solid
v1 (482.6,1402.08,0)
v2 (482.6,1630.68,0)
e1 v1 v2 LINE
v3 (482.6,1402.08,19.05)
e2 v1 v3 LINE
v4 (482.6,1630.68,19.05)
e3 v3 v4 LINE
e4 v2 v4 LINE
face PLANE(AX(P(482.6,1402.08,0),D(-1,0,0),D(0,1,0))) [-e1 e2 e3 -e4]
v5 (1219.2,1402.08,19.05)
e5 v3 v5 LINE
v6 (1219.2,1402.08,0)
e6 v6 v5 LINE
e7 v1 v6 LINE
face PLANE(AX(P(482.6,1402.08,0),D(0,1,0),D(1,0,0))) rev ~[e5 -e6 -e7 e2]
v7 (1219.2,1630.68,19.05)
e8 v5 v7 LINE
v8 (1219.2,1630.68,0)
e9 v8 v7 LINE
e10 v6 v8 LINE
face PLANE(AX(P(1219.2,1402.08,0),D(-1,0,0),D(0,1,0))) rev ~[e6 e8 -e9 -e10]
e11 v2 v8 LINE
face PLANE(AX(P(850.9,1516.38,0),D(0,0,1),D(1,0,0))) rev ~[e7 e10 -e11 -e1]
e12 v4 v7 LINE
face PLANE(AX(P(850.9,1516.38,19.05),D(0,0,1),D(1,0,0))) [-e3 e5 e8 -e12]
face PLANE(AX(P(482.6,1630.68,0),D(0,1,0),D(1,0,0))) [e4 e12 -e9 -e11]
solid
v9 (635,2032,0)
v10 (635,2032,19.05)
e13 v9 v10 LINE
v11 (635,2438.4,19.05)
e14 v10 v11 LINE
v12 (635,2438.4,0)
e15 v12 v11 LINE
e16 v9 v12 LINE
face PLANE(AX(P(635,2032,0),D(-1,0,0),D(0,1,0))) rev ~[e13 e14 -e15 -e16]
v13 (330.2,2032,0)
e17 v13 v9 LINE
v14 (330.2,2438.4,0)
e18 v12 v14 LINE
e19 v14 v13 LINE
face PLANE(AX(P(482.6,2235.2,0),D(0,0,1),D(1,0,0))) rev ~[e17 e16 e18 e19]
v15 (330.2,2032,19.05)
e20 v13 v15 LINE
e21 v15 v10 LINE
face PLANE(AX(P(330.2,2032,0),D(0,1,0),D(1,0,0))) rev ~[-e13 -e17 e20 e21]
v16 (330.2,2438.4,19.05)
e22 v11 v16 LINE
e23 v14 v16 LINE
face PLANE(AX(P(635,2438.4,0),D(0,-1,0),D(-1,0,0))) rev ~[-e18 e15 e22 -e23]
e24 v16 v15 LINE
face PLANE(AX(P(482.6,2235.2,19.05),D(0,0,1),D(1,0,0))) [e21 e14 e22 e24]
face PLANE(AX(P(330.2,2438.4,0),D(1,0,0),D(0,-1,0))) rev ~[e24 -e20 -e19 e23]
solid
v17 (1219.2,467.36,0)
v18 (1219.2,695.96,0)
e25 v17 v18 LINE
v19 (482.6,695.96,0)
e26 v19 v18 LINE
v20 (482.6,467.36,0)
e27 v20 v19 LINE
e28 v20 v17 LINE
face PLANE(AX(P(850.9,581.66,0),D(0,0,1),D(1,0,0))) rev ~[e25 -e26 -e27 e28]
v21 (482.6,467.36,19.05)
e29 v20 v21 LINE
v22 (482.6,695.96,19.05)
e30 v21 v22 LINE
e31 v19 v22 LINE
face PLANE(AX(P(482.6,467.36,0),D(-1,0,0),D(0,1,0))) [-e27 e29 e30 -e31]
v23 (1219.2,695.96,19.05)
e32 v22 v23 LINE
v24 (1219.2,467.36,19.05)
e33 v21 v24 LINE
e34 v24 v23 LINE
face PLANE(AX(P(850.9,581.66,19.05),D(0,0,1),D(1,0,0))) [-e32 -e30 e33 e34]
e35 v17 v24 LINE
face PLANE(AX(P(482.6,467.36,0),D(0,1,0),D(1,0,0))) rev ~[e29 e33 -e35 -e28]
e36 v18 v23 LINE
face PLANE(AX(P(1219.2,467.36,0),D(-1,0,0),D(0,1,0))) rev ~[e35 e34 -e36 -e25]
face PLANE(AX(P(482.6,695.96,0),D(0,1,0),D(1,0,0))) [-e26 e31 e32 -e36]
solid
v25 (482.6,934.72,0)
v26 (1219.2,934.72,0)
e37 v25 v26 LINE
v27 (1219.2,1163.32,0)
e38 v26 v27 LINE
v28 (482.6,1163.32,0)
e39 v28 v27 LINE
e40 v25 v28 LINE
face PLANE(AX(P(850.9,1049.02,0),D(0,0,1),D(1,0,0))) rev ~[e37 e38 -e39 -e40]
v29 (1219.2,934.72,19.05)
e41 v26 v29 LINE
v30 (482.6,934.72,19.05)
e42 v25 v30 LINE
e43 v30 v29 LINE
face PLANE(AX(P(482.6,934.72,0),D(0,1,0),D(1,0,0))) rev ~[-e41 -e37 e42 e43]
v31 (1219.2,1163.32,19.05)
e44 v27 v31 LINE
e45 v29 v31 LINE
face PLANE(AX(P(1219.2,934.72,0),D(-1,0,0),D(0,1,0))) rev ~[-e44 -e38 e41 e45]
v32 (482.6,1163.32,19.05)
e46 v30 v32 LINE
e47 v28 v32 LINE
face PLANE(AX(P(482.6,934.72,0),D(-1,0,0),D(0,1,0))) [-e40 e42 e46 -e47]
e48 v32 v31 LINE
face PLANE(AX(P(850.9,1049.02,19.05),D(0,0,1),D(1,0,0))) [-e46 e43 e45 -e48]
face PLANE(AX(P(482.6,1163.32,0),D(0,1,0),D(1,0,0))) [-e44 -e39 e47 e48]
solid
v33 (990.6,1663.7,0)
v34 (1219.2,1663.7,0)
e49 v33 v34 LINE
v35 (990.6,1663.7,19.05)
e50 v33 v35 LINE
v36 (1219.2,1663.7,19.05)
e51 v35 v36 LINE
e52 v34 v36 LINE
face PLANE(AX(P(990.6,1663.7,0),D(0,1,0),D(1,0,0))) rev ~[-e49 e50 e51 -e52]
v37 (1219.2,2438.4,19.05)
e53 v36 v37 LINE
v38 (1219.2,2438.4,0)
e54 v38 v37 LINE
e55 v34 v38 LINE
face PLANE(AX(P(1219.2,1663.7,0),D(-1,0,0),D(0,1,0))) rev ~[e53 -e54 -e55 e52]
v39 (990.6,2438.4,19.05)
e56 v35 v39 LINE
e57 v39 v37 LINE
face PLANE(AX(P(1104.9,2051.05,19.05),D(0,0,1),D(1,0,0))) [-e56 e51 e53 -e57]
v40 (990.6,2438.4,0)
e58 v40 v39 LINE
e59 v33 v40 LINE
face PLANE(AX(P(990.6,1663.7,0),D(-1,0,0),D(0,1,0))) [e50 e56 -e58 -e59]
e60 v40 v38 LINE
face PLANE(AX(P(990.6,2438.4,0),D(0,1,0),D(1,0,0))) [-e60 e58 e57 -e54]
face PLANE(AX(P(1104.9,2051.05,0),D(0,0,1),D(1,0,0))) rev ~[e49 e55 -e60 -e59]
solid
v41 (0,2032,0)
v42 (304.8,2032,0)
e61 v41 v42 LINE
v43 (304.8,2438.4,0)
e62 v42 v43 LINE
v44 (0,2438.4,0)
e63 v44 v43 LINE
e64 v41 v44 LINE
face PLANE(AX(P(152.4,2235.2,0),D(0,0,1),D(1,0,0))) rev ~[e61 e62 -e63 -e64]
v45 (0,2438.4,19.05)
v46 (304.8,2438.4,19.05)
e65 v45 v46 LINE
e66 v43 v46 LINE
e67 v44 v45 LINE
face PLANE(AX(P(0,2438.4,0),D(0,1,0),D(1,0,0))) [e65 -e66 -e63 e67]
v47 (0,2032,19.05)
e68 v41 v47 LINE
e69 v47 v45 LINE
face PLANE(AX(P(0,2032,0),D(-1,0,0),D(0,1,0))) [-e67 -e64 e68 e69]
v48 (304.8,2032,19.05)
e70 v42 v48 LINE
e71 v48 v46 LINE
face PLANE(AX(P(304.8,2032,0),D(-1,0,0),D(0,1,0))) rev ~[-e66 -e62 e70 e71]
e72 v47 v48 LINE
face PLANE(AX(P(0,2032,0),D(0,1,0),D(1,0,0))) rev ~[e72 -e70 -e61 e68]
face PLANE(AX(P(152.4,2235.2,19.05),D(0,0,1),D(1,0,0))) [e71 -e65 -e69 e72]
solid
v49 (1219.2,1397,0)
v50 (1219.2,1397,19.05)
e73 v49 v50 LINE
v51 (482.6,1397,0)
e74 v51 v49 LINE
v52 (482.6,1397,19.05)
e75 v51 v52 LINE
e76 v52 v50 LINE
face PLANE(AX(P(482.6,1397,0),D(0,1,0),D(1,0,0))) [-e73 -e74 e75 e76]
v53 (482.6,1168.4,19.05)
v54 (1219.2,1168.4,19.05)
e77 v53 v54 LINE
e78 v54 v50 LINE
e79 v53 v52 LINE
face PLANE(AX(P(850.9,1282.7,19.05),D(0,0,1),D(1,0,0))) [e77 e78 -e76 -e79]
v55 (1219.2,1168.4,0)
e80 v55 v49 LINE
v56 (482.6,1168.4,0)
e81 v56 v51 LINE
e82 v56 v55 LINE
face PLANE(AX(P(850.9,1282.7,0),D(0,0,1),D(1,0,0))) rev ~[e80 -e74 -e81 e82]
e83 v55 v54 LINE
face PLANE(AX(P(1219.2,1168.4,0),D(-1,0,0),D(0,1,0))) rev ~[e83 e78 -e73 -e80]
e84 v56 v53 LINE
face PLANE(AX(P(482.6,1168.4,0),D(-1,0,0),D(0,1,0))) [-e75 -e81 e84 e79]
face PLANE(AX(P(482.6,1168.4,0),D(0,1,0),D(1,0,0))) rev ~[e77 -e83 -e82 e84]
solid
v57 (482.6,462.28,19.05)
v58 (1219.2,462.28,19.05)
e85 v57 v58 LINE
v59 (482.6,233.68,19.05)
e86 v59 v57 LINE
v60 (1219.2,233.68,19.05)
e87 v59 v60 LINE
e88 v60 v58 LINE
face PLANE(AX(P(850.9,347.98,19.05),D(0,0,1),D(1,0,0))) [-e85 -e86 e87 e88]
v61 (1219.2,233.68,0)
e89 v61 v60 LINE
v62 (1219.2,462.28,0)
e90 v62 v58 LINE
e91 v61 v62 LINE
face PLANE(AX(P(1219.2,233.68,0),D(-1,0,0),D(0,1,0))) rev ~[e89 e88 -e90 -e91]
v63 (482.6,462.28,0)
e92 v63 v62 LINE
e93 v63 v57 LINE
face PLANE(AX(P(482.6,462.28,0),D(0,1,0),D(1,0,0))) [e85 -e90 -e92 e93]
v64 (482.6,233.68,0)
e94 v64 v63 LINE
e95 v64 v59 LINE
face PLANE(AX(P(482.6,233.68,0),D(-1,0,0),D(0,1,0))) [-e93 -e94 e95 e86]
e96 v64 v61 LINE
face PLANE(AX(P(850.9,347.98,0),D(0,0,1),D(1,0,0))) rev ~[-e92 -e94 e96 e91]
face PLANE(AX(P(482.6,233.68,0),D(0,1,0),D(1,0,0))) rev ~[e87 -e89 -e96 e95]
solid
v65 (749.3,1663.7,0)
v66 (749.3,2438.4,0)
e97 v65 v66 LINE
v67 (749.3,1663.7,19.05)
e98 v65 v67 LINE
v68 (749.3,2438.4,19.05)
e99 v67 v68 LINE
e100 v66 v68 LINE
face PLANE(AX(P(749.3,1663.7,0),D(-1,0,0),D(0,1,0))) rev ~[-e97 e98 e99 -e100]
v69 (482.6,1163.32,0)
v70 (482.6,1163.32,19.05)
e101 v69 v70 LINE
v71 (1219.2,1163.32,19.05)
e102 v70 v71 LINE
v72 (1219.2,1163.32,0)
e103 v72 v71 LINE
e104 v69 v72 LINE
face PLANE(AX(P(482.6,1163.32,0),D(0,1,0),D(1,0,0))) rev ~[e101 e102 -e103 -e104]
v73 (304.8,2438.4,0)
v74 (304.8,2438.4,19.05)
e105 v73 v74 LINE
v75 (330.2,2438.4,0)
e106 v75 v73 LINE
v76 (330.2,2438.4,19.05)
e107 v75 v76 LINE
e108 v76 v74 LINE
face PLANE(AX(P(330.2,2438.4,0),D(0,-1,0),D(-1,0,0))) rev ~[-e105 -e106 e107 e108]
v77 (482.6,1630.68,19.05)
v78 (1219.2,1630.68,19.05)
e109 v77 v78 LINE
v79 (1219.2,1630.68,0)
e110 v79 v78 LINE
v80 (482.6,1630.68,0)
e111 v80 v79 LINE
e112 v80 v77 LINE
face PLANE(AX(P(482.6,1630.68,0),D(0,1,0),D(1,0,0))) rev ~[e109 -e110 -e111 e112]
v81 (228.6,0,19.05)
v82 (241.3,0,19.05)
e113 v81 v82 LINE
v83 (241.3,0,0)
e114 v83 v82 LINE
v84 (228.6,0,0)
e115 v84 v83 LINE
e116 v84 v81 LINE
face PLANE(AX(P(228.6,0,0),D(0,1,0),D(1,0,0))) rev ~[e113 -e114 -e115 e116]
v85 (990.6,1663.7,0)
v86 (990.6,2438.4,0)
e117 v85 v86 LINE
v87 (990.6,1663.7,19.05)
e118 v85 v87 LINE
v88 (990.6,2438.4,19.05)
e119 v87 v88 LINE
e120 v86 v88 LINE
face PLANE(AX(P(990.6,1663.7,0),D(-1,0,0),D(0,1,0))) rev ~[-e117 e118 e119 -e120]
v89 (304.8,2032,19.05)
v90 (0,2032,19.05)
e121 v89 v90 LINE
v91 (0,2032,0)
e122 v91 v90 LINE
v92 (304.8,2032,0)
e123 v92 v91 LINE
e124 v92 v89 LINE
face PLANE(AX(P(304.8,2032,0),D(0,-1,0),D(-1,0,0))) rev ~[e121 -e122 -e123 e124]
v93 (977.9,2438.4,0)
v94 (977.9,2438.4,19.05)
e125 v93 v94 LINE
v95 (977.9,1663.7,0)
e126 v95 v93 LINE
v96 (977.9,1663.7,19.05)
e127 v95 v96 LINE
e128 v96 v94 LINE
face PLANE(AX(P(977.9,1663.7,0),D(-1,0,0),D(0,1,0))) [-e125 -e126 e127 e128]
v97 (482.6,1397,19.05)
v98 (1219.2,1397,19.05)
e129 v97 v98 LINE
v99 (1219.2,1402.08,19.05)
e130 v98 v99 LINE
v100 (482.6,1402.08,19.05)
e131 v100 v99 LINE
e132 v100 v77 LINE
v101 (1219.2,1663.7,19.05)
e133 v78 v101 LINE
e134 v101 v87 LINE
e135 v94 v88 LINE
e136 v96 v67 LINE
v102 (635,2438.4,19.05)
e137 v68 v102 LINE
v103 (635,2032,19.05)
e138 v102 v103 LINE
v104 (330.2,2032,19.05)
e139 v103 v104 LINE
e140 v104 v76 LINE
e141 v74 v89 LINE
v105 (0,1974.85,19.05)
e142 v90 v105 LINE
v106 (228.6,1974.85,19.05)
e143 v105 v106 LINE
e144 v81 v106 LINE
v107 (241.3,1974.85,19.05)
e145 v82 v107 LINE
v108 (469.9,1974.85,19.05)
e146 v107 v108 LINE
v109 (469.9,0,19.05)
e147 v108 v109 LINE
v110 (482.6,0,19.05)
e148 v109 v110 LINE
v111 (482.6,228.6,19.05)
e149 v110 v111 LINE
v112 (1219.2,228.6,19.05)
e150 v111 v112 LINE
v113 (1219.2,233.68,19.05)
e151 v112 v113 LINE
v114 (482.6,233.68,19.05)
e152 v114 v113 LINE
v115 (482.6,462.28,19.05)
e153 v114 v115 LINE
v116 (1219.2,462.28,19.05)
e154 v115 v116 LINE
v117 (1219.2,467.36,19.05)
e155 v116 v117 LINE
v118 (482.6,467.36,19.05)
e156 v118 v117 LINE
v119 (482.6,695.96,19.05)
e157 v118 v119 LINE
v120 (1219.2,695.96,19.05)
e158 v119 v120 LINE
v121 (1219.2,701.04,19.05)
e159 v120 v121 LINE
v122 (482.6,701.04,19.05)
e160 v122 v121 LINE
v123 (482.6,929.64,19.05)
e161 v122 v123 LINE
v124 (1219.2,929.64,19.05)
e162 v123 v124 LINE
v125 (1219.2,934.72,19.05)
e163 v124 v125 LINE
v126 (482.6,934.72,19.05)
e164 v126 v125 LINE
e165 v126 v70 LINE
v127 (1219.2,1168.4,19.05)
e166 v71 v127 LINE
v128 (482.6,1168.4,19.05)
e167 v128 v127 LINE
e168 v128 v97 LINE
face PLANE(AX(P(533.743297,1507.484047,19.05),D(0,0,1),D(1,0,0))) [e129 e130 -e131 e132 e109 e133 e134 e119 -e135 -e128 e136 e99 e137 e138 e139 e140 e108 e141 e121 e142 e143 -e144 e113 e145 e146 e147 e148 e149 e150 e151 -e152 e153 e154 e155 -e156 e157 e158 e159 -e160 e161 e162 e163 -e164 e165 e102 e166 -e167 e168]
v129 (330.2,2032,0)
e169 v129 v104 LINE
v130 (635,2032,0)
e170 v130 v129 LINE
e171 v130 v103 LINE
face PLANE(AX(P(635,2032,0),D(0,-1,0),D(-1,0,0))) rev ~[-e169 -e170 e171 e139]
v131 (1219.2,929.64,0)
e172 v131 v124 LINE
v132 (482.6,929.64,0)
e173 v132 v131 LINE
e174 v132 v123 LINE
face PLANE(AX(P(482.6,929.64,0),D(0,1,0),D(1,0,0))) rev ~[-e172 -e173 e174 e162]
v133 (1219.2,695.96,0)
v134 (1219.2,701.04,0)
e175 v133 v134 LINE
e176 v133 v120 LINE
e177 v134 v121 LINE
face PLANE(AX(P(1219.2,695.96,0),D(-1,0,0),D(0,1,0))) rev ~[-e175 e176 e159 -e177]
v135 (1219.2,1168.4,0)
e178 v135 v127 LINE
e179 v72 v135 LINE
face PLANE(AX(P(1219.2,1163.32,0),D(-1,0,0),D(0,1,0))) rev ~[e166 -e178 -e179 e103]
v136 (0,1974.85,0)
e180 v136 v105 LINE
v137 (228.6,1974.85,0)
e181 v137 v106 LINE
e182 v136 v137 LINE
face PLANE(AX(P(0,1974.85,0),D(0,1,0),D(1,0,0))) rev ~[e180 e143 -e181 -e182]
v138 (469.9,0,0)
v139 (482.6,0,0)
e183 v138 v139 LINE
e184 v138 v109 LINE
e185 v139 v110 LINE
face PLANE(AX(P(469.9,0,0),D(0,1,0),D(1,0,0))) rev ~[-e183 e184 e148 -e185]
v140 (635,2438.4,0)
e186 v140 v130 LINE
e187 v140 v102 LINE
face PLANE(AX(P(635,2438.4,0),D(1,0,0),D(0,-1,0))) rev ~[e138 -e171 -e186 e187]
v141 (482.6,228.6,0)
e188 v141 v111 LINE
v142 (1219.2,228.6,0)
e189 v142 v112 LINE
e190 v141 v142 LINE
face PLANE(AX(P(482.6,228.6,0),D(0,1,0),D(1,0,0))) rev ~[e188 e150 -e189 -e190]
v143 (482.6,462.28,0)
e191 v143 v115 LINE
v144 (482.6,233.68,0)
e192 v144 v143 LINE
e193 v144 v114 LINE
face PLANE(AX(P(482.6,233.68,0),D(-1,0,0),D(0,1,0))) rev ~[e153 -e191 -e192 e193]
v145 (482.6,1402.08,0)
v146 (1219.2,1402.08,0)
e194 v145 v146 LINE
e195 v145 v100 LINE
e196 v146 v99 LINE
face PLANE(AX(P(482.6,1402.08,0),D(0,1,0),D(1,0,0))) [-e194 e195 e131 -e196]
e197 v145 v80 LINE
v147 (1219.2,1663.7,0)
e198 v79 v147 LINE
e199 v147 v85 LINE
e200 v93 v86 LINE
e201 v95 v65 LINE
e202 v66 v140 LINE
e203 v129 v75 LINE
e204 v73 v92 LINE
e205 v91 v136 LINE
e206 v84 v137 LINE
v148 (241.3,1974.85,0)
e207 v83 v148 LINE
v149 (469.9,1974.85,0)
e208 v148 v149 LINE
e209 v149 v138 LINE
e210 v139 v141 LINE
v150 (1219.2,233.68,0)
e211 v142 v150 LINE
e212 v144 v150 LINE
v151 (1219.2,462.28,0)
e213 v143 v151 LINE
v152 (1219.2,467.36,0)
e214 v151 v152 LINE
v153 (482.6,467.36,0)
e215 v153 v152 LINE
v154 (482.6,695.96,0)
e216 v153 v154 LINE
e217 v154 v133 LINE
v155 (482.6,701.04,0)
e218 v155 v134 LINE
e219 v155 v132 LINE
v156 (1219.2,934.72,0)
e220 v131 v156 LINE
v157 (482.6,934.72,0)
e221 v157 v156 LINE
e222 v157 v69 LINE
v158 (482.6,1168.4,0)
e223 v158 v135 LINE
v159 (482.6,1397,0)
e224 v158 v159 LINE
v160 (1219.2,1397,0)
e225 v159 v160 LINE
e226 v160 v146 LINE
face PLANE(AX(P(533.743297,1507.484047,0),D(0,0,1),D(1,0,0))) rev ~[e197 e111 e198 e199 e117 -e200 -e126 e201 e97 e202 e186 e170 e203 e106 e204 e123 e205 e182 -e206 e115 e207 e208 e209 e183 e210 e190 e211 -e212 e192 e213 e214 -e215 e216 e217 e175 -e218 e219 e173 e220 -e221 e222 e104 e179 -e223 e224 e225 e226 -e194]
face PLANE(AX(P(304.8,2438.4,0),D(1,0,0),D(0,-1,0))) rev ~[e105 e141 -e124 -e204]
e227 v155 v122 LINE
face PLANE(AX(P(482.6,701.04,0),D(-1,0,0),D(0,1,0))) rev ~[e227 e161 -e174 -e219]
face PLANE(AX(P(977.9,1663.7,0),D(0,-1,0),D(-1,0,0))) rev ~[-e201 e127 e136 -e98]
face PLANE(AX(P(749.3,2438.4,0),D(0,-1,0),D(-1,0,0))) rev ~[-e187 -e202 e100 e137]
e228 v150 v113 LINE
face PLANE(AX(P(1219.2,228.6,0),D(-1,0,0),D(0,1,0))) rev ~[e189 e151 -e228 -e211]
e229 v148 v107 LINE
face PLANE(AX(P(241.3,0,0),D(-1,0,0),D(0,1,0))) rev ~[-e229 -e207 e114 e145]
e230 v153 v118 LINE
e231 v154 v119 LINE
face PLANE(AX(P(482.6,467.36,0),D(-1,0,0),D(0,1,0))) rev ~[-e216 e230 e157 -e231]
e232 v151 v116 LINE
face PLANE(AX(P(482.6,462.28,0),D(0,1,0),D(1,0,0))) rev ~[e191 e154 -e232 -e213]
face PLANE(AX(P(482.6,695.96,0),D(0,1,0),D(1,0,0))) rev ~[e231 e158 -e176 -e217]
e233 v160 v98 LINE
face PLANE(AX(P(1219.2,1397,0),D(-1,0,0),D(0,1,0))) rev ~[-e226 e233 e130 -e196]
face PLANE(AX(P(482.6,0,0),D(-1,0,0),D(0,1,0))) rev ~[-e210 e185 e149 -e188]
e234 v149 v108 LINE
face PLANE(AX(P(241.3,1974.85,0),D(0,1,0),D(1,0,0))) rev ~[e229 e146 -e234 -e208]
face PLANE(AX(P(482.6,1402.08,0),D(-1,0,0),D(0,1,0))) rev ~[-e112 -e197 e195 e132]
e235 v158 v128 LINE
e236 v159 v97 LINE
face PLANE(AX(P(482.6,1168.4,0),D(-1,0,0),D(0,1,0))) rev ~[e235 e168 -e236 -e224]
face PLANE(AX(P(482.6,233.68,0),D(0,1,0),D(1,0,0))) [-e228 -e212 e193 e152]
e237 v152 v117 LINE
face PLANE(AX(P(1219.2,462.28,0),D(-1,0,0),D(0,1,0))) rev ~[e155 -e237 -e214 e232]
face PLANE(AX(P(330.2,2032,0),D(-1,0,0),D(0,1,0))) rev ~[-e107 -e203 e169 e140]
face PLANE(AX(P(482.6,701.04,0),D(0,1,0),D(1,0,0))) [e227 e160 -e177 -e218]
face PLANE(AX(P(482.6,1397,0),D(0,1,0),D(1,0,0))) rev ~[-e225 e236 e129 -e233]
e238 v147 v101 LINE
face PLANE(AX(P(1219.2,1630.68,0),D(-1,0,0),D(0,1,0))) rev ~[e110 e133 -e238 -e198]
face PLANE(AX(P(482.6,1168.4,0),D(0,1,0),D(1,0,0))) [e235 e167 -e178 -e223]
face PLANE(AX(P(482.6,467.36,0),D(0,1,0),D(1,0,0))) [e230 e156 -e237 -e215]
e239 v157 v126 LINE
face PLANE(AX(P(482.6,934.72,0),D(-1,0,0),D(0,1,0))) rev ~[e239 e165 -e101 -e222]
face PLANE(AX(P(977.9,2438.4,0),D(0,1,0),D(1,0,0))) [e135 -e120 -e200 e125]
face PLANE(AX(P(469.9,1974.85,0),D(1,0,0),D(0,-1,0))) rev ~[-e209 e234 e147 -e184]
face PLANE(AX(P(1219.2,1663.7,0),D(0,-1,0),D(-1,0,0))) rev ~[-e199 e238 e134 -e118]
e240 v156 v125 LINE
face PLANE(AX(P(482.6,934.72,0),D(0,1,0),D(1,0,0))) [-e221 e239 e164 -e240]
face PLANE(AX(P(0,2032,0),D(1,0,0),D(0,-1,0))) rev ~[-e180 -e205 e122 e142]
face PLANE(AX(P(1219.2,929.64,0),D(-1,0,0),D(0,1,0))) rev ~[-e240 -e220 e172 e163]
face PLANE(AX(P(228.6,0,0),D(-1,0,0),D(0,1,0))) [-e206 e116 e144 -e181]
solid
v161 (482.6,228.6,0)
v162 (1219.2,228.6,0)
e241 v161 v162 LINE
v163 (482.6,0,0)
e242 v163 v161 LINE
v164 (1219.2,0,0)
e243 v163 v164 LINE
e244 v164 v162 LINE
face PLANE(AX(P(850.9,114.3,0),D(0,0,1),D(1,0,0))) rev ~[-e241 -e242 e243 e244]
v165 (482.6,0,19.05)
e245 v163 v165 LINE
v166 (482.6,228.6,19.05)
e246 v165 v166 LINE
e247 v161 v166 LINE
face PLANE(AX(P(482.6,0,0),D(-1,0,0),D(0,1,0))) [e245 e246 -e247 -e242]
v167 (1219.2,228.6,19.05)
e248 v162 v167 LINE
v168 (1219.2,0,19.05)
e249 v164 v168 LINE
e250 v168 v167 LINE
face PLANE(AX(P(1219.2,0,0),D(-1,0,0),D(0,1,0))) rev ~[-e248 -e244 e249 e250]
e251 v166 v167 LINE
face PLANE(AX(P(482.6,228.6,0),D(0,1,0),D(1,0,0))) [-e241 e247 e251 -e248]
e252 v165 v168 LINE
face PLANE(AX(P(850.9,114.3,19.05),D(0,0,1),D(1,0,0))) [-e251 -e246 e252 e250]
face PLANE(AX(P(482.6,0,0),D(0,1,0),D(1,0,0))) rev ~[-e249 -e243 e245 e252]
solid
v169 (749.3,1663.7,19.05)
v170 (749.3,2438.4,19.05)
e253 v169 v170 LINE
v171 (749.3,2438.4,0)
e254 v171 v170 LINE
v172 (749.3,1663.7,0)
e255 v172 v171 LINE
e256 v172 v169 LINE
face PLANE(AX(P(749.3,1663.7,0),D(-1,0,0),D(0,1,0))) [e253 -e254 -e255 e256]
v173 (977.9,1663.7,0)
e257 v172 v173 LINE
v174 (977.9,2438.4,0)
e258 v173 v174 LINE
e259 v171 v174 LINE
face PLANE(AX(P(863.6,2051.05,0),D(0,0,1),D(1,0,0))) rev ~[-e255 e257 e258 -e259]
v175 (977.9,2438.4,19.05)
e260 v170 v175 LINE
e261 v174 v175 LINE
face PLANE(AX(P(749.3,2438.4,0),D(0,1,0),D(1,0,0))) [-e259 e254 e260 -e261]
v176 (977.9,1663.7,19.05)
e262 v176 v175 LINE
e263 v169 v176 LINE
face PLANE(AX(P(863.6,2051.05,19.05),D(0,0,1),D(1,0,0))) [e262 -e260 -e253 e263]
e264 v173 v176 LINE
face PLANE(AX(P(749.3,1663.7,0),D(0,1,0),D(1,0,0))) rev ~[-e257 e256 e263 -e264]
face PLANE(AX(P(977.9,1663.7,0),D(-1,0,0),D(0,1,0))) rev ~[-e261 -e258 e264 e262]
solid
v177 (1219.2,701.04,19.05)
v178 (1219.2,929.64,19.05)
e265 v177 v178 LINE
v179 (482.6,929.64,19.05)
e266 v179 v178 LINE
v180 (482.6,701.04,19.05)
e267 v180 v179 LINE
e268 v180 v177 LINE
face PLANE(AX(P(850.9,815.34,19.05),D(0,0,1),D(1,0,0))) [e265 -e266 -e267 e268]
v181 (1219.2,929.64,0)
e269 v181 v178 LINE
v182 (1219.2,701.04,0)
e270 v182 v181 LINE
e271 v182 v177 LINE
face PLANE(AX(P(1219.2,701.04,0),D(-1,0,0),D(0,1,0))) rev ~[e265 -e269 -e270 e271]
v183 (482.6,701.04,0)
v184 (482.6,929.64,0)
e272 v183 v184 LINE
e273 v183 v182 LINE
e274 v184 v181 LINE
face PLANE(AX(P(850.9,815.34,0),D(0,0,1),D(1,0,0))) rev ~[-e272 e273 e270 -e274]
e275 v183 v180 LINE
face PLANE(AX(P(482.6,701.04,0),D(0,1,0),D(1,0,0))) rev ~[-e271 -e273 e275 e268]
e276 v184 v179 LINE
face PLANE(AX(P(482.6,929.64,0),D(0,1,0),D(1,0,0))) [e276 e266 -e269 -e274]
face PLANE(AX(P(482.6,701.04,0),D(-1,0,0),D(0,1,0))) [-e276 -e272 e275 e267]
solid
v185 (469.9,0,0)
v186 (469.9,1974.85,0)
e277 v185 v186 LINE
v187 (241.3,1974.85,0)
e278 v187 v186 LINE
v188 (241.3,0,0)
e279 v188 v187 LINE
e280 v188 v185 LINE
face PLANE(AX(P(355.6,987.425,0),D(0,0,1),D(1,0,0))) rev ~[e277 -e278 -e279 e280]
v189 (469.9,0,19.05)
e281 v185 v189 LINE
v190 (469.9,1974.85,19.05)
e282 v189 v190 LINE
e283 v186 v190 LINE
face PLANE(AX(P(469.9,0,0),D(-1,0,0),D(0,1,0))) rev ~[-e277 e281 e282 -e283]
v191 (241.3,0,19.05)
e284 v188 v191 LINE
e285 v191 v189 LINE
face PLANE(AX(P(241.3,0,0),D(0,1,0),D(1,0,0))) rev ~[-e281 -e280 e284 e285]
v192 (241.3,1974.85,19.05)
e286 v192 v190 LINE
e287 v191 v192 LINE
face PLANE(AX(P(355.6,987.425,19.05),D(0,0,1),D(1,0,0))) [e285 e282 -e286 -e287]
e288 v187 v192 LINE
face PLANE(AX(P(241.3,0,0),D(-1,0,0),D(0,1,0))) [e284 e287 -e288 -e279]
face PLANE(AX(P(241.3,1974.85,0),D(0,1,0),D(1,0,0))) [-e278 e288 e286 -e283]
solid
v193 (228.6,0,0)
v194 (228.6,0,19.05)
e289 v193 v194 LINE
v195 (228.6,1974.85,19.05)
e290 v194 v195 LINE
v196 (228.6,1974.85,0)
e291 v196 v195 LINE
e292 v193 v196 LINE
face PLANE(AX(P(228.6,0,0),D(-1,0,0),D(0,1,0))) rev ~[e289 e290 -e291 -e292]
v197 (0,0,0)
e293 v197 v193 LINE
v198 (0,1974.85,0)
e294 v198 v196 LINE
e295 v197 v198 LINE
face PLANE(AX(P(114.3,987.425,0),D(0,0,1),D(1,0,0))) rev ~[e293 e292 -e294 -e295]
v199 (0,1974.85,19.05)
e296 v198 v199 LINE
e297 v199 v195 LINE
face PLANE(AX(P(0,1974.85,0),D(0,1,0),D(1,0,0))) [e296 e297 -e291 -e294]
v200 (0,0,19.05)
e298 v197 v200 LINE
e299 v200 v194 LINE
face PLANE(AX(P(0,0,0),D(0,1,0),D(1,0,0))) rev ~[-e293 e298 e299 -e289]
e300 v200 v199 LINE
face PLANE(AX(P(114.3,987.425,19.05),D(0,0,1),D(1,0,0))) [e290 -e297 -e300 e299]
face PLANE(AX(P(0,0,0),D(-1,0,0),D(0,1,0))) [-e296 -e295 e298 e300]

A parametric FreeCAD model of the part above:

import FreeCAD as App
import Part
import Sketcher

V = App.Vector
Q = App.Units.Quantity

doc = App.newDocument("Part")
body = doc.addObject("PartDesign::Body", "Body")

sketch1 = body.newObject("Sketcher::SketchObject", "Sketch")
sketch1.AttachmentSupport = (doc.getObject("XY_Plane"), [""])
sketch1.MapMode = "FlatFace"
sketch1.addGeometry([
    Part.LineSegment(V(0, 2032, 0), V(0, 1975, 0)),
    Part.LineSegment(V(0, 1975, 0), V(229, 1975, 0)),
    Part.LineSegment(V(229, 1975, 0), V(229, 0, 0)),
    Part.LineSegment(V(229, 0, 0), V(241, 0, 0)),
    Part.LineSegment(V(241, 0, 0), V(241, 1975, 0)),
    Part.LineSegment(V(241, 1975, 0), V(470, 1975, 0)),
    Part.LineSegment(V(470, 1975, 0), V(470, 0, 0)),
    Part.LineSegment(V(470, 0, 0), V(483, 0, 0)),
    Part.LineSegment(V(483, 0, 0), V(483, 229, 0)),
    Part.LineSegment(V(483, 229, 0), V(1219, 229, 0)),
    Part.LineSegment(V(1219, 229, 0), V(1219, 234, 0)),
    Part.LineSegment(V(1219, 234, 0), V(483, 234, 0)),
    Part.LineSegment(V(483, 234, 0), V(483, 462, 0)),
    Part.LineSegment(V(483, 462, 0), V(1219, 462, 0)),
    Part.LineSegment(V(1219, 462, 0), V(1219, 467, 0)),
    Part.LineSegment(V(1219, 467, 0), V(483, 467, 0)),
    Part.LineSegment(V(483, 467, 0), V(483, 696, 0)),
    Part.LineSegment(V(483, 696, 0), V(1219, 696, 0)),
    Part.LineSegment(V(1219, 696, 0), V(1219, 701, 0)),
    Part.LineSegment(V(1219, 701, 0), V(483, 701, 0)),
    Part.LineSegment(V(483, 701, 0), V(483, 930, 0)),
    Part.LineSegment(V(483, 930, 0), V(1219, 930, 0)),
    Part.LineSegment(V(1219, 930, 0), V(1219, 935, 0)),
    Part.LineSegment(V(1219, 935, 0), V(483, 935, 0)),
    Part.LineSegment(V(483, 935, 0), V(483, 1163, 0)),
    Part.LineSegment(V(483, 1163, 0), V(1219, 1163, 0)),
    Part.LineSegment(V(1219, 1163, 0), V(1219, 1168, 0)),
    Part.LineSegment(V(1219, 1168, 0), V(483, 1168, 0)),
    Part.LineSegment(V(483, 1168, 0), V(483, 1397, 0)),
    Part.LineSegment(V(483, 1397, 0), V(1219, 1397, 0)),
    Part.LineSegment(V(1219, 1397, 0), V(1219, 1402, 0)),
    Part.LineSegment(V(1219, 1402, 0), V(483, 1402, 0)),
    Part.LineSegment(V(483, 1402, 0), V(483, 1631, 0)),
    Part.LineSegment(V(483, 1631, 0), V(1219, 1631, 0)),
    Part.LineSegment(V(1219, 1631, 0), V(1219, 1664, 0)),
    Part.LineSegment(V(1219, 1664, 0), V(991, 1664, 0)),
    Part.LineSegment(V(991, 1664, 0), V(991, 2438, 0)),
    Part.LineSegment(V(991, 2438, 0), V(978, 2438, 0)),
    Part.LineSegment(V(978, 2438, 0), V(978, 1664, 0)),
    Part.LineSegment(V(978, 1664, 0), V(749, 1664, 0)),
    Part.LineSegment(V(749, 1664, 0), V(749, 2438, 0)),
    Part.LineSegment(V(749, 2438, 0), V(635, 2438, 0)),
    Part.LineSegment(V(635, 2438, 0), V(635, 2032, 0)),
    Part.LineSegment(V(635, 2032, 0), V(330, 2032, 0)),
    Part.LineSegment(V(330, 2032, 0), V(330, 2438, 0)),
    Part.LineSegment(V(330, 2438, 0), V(305, 2438, 0)),
    Part.LineSegment(V(305, 2438, 0), V(305, 2032, 0)),
    Part.LineSegment(V(305, 2032, 0), V(0, 2032, 0)),
], False)
sketch1.addConstraint([
    Sketcher.Constraint("Coincident", 0, 2, 1, 1),
    Sketcher.Constraint("Coincident", 1, 2, 2, 1),
    Sketcher.Constraint("Coincident", 2, 2, 3, 1),
    Sketcher.Constraint("Coincident", 3, 2, 4, 1),
    Sketcher.Constraint("Coincident", 4, 2, 5, 1),
    Sketcher.Constraint("Coincident", 5, 2, 6, 1),
    Sketcher.Constraint("Coincident", 6, 2, 7, 1),
    Sketcher.Constraint("Coincident", 7, 2, 8, 1),
    Sketcher.Constraint("Coincident", 8, 2, 9, 1),
    Sketcher.Constraint("Coincident", 9, 2, 10, 1),
    Sketcher.Constraint("Coincident", 10, 2, 11, 1),
    Sketcher.Constraint("Coincident", 11, 2, 12, 1),
    Sketcher.Constraint("Coincident", 12, 2, 13, 1),
    Sketcher.Constraint("Coincident", 13, 2, 14, 1),
    Sketcher.Constraint("Coincident", 14, 2, 15, 1),
    Sketcher.Constraint("Coincident", 15, 2, 16, 1),
    Sketcher.Constraint("Coincident", 16, 2, 17, 1),
    Sketcher.Constraint("Coincident", 17, 2, 18, 1),
    Sketcher.Constraint("Coincident", 18, 2, 19, 1),
    Sketcher.Constraint("Coincident", 19, 2, 20, 1),
    Sketcher.Constraint("Coincident", 20, 2, 21, 1),
    Sketcher.Constraint("Coincident", 21, 2, 22, 1),
    Sketcher.Constraint("Coincident", 22, 2, 23, 1),
    Sketcher.Constraint("Coincident", 23, 2, 24, 1),
    Sketcher.Constraint("Coincident", 24, 2, 25, 1),
    Sketcher.Constraint("Coincident", 25, 2, 26, 1),
    Sketcher.Constraint("Coincident", 26, 2, 27, 1),
    Sketcher.Constraint("Coincident", 27, 2, 28, 1),
    Sketcher.Constraint("Coincident", 28, 2, 29, 1),
    Sketcher.Constraint("Coincident", 29, 2, 30, 1),
    Sketcher.Constraint("Coincident", 30, 2, 31, 1),
    Sketcher.Constraint("Coincident", 31, 2, 32, 1),
    Sketcher.Constraint("Coincident", 32, 2, 33, 1),
    Sketcher.Constraint("Coincident", 33, 2, 34, 1),
    Sketcher.Constraint("Coincident", 34, 2, 35, 1),
    Sketcher.Constraint("Coincident", 35, 2, 36, 1),
    Sketcher.Constraint("Coincident", 36, 2, 37, 1),
    Sketcher.Constraint("Coincident", 37, 2, 38, 1),
    Sketcher.Constraint("Coincident", 38, 2, 39, 1),
    Sketcher.Constraint("Coincident", 39, 2, 40, 1),
    Sketcher.Constraint("Coincident", 40, 2, 41, 1),
    Sketcher.Constraint("Coincident", 41, 2, 42, 1),
    Sketcher.Constraint("Coincident", 42, 2, 43, 1),
    Sketcher.Constraint("Coincident", 43, 2, 44, 1),
    Sketcher.Constraint("Coincident", 44, 2, 45, 1),
    Sketcher.Constraint("Coincident", 45, 2, 46, 1),
    Sketcher.Constraint("Coincident", 46, 2, 47, 1),
    Sketcher.Constraint("Coincident", 47, 2, 0, 1),
    Sketcher.Constraint("Vertical", 0),
    Sketcher.Constraint("Horizontal", 1),
    Sketcher.Constraint("Vertical", 2),
    Sketcher.Constraint("Horizontal", 3),
    Sketcher.Constraint("Vertical", 4),
    Sketcher.Constraint("Horizontal", 5),
    Sketcher.Constraint("Vertical", 6),
    Sketcher.Constraint("Horizontal", 7),
    Sketcher.Constraint("Vertical", 8),
    Sketcher.Constraint("Horizontal", 9),
    Sketcher.Constraint("Vertical", 10),
    Sketcher.Constraint("Horizontal", 11),
    Sketcher.Constraint("Vertical", 12),
    Sketcher.Constraint("Horizontal", 13),
    Sketcher.Constraint("Vertical", 14),
    Sketcher.Constraint("Horizontal", 15),
    Sketcher.Constraint("Vertical", 16),
    Sketcher.Constraint("Horizontal", 17),
    Sketcher.Constraint("Vertical", 18),
    Sketcher.Constraint("Horizontal", 19),
    Sketcher.Constraint("Vertical", 20),
    Sketcher.Constraint("Horizontal", 21),
    Sketcher.Constraint("Vertical", 22),
    Sketcher.Constraint("Horizontal", 23),
    Sketcher.Constraint("Vertical", 24),
    Sketcher.Constraint("Horizontal", 25),
    Sketcher.Constraint("Vertical", 26),
    Sketcher.Constraint("Horizontal", 27),
    Sketcher.Constraint("Vertical", 28),
    Sketcher.Constraint("Horizontal", 29),
    Sketcher.Constraint("Vertical", 30),
    Sketcher.Constraint("Horizontal", 31),
    Sketcher.Constraint("Vertical", 32),
    Sketcher.Constraint("Horizontal", 33),
    Sketcher.Constraint("Vertical", 34),
    Sketcher.Constraint("Horizontal", 35),
    Sketcher.Constraint("Vertical", 36),
    Sketcher.Constraint("Horizontal", 37),
    Sketcher.Constraint("Vertical", 38),
    Sketcher.Constraint("Horizontal", 39),
    Sketcher.Constraint("Vertical", 40),
    Sketcher.Constraint("Horizontal", 41),
    Sketcher.Constraint("Vertical", 42),
    Sketcher.Constraint("Horizontal", 43),
    Sketcher.Constraint("Vertical", 44),
    Sketcher.Constraint("Horizontal", 45),
    Sketcher.Constraint("Vertical", 46),
    Sketcher.Constraint("Horizontal", 47),
    Sketcher.Constraint("PointOnObject", 0, 2, -2),
    Sketcher.Constraint("PointOnObject", 2, 2, -1),
    Sketcher.Constraint("PointOnObject", 6, 2, -1),
    Sketcher.Constraint("Horizontal", 1, 2, 4, 2),
    Sketcher.Constraint("Horizontal", 35, 2, 38, 2),
    Sketcher.Constraint("Horizontal", 37, 2, 40, 2),
    Sketcher.Constraint("Horizontal", 41, 2, 44, 2),
    Sketcher.Constraint("Horizontal", 43, 2, 46, 2),
    Sketcher.Constraint("Vertical", 8, 2, 11, 2),
    Sketcher.Constraint("Vertical", 10, 2, 13, 2),
    Sketcher.Constraint("Vertical", 12, 2, 15, 2),
    Sketcher.Constraint("Vertical", 14, 2, 17, 2),
    Sketcher.Constraint("Vertical", 16, 2, 19, 2),
    Sketcher.Constraint("Vertical", 18, 2, 21, 2),
    Sketcher.Constraint("Vertical", 20, 2, 23, 2),
    Sketcher.Constraint("Vertical", 22, 2, 25, 2),
    Sketcher.Constraint("Vertical", 24, 2, 27, 2),
    Sketcher.Constraint("Vertical", 26, 2, 29, 2),
    Sketcher.Constraint("Vertical", 28, 2, 31, 2),
    Sketcher.Constraint("Vertical", 30, 2, 33, 2),
    Sketcher.Constraint("Equal", 1, 5),
    Sketcher.Constraint("Equal", 3, 7),
    Sketcher.Constraint("Equal", 5, 35),
    Sketcher.Constraint("Equal", 7, 37),
    Sketcher.Constraint("Equal", 35, 39),
    Sketcher.Constraint("Equal", 43, 47),
    Sketcher.Constraint("Equal", 39, 8),
    Sketcher.Constraint("Equal", 8, 12),
    Sketcher.Constraint("Equal", 10, 14),
    Sketcher.Constraint("Equal", 12, 16),
    Sketcher.Constraint("Equal", 14, 18),
    Sketcher.Constraint("Equal", 16, 20),
    Sketcher.Constraint("Equal", 18, 22),
    Sketcher.Constraint("Equal", 20, 24),
    Sketcher.Constraint("Equal", 22, 26),
    Sketcher.Constraint("Equal", 24, 28),
    Sketcher.Constraint("Equal", 26, 30),
    Sketcher.Constraint("Equal", 28, 32),
    Sketcher.Constraint("DistanceX", 1, 1, 1, 2, Q("9 in")),
    Sketcher.Constraint("DistanceX", 9, 1, 9, 2, Q("29 in")),
    Sketcher.Constraint("DistanceX", 43, 2, 43, 1, Q("12 in")),
    Sketcher.Constraint("DistanceX", 45, 2, 45, 1, Q("1 in")),
    Sketcher.Constraint("DistanceY", 42, 2, 42, 1, Q("16 in")),
    Sketcher.Constraint("DistanceX", 3, 1, 3, 2, Q("0.5 in")),
    Sketcher.Constraint("DistanceY", 10, 1, 10, 2, Q("0.2 in")),
    Sketcher.Constraint("DistanceY", 34, 1, 34, 2, Q("1.3 in")),
    Sketcher.Constraint("DistanceY", 36, 1, 36, 2, Q("30.5 in")),
    Sketcher.Constraint("DistanceY", 0, 2, 0, 1, Q("2.25 in")),
])
pad1 = body.newObject("PartDesign::Pad", "Pad")
pad1.Profile = sketch1
pad1.Length = Q("0.75 in")
body2 = doc.addObject("PartDesign::Body", "Body001")

sketch2 = body2.newObject("Sketcher::SketchObject", "Sketch001")
sketch2.AttachmentSupport = (doc.getObject("XY_Plane001"), [""])
sketch2.MapMode = "FlatFace"
sketch2.addGeometry([
    Part.LineSegment(V(0, 1975, 0), V(0, 0, 0)),
    Part.LineSegment(V(0, 0, 0), V(229, 0, 0)),
    Part.LineSegment(V(229, 0, 0), V(229, 1975, 0)),
    Part.LineSegment(V(229, 1975, 0), V(0, 1975, 0)),
], False)
sketch2.addConstraint([
    Sketcher.Constraint("Coincident", 0, 2, 1, 1),
    Sketcher.Constraint("Coincident", 1, 2, 2, 1),
    Sketcher.Constraint("Coincident", 2, 2, 3, 1),
    Sketcher.Constraint("Coincident", 3, 2, 0, 1),
    Sketcher.Constraint("Vertical", 0),
    Sketcher.Constraint("Horizontal", 1),
    Sketcher.Constraint("Vertical", 2),
    Sketcher.Constraint("Horizontal", 3),
    Sketcher.Constraint("Coincident", 0, 2, -1, 1),
    Sketcher.Constraint("DistanceX", 1, 1, 1, 2, Q("9 in")),
    Sketcher.Constraint("DistanceY", 0, 2, 0, 1, Q("77.75 in")),
])
pad2 = body2.newObject("PartDesign::Pad", "Pad001")
pad2.Profile = sketch2
pad2.Length = Q("0.75 in")
body3 = doc.addObject("PartDesign::Body", "Body002")

sketch3 = body3.newObject("Sketcher::SketchObject", "Sketch002")
sketch3.AttachmentSupport = (doc.getObject("XY_Plane002"), [""])
sketch3.MapMode = "FlatFace"
sketch3.addGeometry([
    Part.LineSegment(V(241, 1975, 0), V(241, 0, 0)),
    Part.LineSegment(V(241, 0, 0), V(470, 0, 0)),
    Part.LineSegment(V(470, 0, 0), V(470, 1975, 0)),
    Part.LineSegment(V(470, 1975, 0), V(241, 1975, 0)),
], False)
sketch3.addConstraint([
    Sketcher.Constraint("Coincident", 0, 2, 1, 1),
    Sketcher.Constraint("Coincident", 1, 2, 2, 1),
    Sketcher.Constraint("Coincident", 2, 2, 3, 1),
    Sketcher.Constraint("Coincident", 3, 2, 0, 1),
    Sketcher.Constraint("Vertical", 0),
    Sketcher.Constraint("Horizontal", 1),
    Sketcher.Constraint("Vertical", 2),
    Sketcher.Constraint("Horizontal", 3),
    Sketcher.Constraint("PointOnObject", 0, 2, -1),
    Sketcher.Constraint("DistanceX", 1, 1, 1, 2, Q("9 in")),
    Sketcher.Constraint("DistanceY", 0, 2, 0, 1, Q("77.75 in")),
    Sketcher.Constraint("DistanceX", -1, 1, 0, 2, Q("9.5 in")),
])
pad3 = body3.newObject("PartDesign::Pad", "Pad002")
pad3.Profile = sketch3
pad3.Length = Q("0.75 in")
body4 = doc.addObject("PartDesign::Body", "Body003")

sketch4 = body4.newObject("Sketcher::SketchObject", "Sketch003")
sketch4.AttachmentSupport = (doc.getObject("XY_Plane003"), [""])
sketch4.MapMode = "FlatFace"
sketch4.addGeometry([
    Part.LineSegment(V(483, 1631, 0), V(483, 1402, 0)),
    Part.LineSegment(V(483, 1402, 0), V(1219, 1402, 0)),
    Part.LineSegment(V(1219, 1402, 0), V(1219, 1631, 0)),
    Part.LineSegment(V(1219, 1631, 0), V(483, 1631, 0)),
], False)
sketch4.addConstraint([
    Sketcher.Constraint("Coincident", 0, 2, 1, 1),
    Sketcher.Constraint("Coincident", 1, 2, 2, 1),
    Sketcher.Constraint("Coincident", 2, 2, 3, 1),
    Sketcher.Constraint("Coincident", 3, 2, 0, 1),
    Sketcher.Constraint("Vertical", 0),
    Sketcher.Constraint("Horizontal", 1),
    Sketcher.Constraint("Vertical", 2),
    Sketcher.Constraint("Horizontal", 3),
    Sketcher.Constraint("DistanceX", 1, 1, 1, 2, Q("29 in")),
    Sketcher.Constraint("DistanceY", 0, 2, 0, 1, Q("9 in")),
    Sketcher.Constraint("DistanceX", -1, 1, 0, 2, Q("19 in")),
    Sketcher.Constraint("DistanceY", -1, 1, 0, 2, Q("55.2 in")),
])
pad4 = body4.newObject("PartDesign::Pad", "Pad003")
pad4.Profile = sketch4
pad4.Length = Q("0.75 in")
body5 = doc.addObject("PartDesign::Body", "Body004")

sketch5 = body5.newObject("Sketcher::SketchObject", "Sketch004")
sketch5.AttachmentSupport = (doc.getObject("XY_Plane004"), [""])
sketch5.MapMode = "FlatFace"
sketch5.addGeometry([
    Part.LineSegment(V(483, 1397, 0), V(483, 1168, 0)),
    Part.LineSegment(V(483, 1168, 0), V(1219, 1168, 0)),
    Part.LineSegment(V(1219, 1168, 0), V(1219, 1397, 0)),
    Part.LineSegment(V(1219, 1397, 0), V(483, 1397, 0)),
], False)
sketch5.addConstraint([
    Sketcher.Constraint("Coincident", 0, 2, 1, 1),
    Sketcher.Constraint("Coincident", 1, 2, 2, 1),
    Sketcher.Constraint("Coincident", 2, 2, 3, 1),
    Sketcher.Constraint("Coincident", 3, 2, 0, 1),
    Sketcher.Constraint("Vertical", 0),
    Sketcher.Constraint("Horizontal", 1),
    Sketcher.Constraint("Vertical", 2),
    Sketcher.Constraint("Horizontal", 3),
    Sketcher.Constraint("DistanceX", 1, 1, 1, 2, Q("29 in")),
    Sketcher.Constraint("DistanceY", 0, 2, 0, 1, Q("9 in")),
    Sketcher.Constraint("DistanceX", -1, 1, 0, 2, Q("19 in")),
    Sketcher.Constraint("DistanceY", -1, 1, 0, 2, Q("46 in")),
])
pad5 = body5.newObject("PartDesign::Pad", "Pad004")
pad5.Profile = sketch5
pad5.Length = Q("0.75 in")
body6 = doc.addObject("PartDesign::Body", "Body005")

sketch6 = body6.newObject("Sketcher::SketchObject", "Sketch005")
sketch6.AttachmentSupport = (doc.getObject("XY_Plane005"), [""])
sketch6.MapMode = "FlatFace"
sketch6.addGeometry([
    Part.LineSegment(V(483, 1163, 0), V(483, 935, 0)),
    Part.LineSegment(V(483, 935, 0), V(1219, 935, 0)),
    Part.LineSegment(V(1219, 935, 0), V(1219, 1163, 0)),
    Part.LineSegment(V(1219, 1163, 0), V(483, 1163, 0)),
], False)
sketch6.addConstraint([
    Sketcher.Constraint("Coincident", 0, 2, 1, 1),
    Sketcher.Constraint("Coincident", 1, 2, 2, 1),
    Sketcher.Constraint("Coincident", 2, 2, 3, 1),
    Sketcher.Constraint("Coincident", 3, 2, 0, 1),
    Sketcher.Constraint("Vertical", 0),
    Sketcher.Constraint("Horizontal", 1),
    Sketcher.Constraint("Vertical", 2),
    Sketcher.Constraint("Horizontal", 3),
    Sketcher.Constraint("DistanceX", 1, 1, 1, 2, Q("29 in")),
    Sketcher.Constraint("DistanceY", 0, 2, 0, 1, Q("9 in")),
    Sketcher.Constraint("DistanceX", -1, 1, 0, 2, Q("19 in")),
    Sketcher.Constraint("DistanceY", -1, 1, 0, 2, Q("36.8 in")),
])
pad6 = body6.newObject("PartDesign::Pad", "Pad005")
pad6.Profile = sketch6
pad6.Length = Q("0.75 in")
body7 = doc.addObject("PartDesign::Body", "Body006")

sketch7 = body7.newObject("Sketcher::SketchObject", "Sketch006")
sketch7.AttachmentSupport = (doc.getObject("XY_Plane006"), [""])
sketch7.MapMode = "FlatFace"
sketch7.addGeometry([
    Part.LineSegment(V(483, 930, 0), V(483, 701, 0)),
    Part.LineSegment(V(483, 701, 0), V(1219, 701, 0)),
    Part.LineSegment(V(1219, 701, 0), V(1219, 930, 0)),
    Part.LineSegment(V(1219, 930, 0), V(483, 930, 0)),
], False)
sketch7.addConstraint([
    Sketcher.Constraint("Coincident", 0, 2, 1, 1),
    Sketcher.Constraint("Coincident", 1, 2, 2, 1),
    Sketcher.Constraint("Coincident", 2, 2, 3, 1),
    Sketcher.Constraint("Coincident", 3, 2, 0, 1),
    Sketcher.Constraint("Vertical", 0),
    Sketcher.Constraint("Horizontal", 1),
    Sketcher.Constraint("Vertical", 2),
    Sketcher.Constraint("Horizontal", 3),
    Sketcher.Constraint("DistanceX", 1, 1, 1, 2, Q("29 in")),
    Sketcher.Constraint("DistanceY", 0, 2, 0, 1, Q("9 in")),
    Sketcher.Constraint("DistanceX", -1, 1, 0, 2, Q("19 in")),
    Sketcher.Constraint("DistanceY", -1, 1, 0, 2, Q("27.6 in")),
])
pad7 = body7.newObject("PartDesign::Pad", "Pad006")
pad7.Profile = sketch7
pad7.Length = Q("0.75 in")
body8 = doc.addObject("PartDesign::Body", "Body007")

sketch8 = body8.newObject("Sketcher::SketchObject", "Sketch007")
sketch8.AttachmentSupport = (doc.getObject("XY_Plane007"), [""])
sketch8.MapMode = "FlatFace"
sketch8.addGeometry([
    Part.LineSegment(V(483, 696, 0), V(483, 467, 0)),
    Part.LineSegment(V(483, 467, 0), V(1219, 467, 0)),
    Part.LineSegment(V(1219, 467, 0), V(1219, 696, 0)),
    Part.LineSegment(V(1219, 696, 0), V(483, 696, 0)),
], False)
sketch8.addConstraint([
    Sketcher.Constraint("Coincident", 0, 2, 1, 1),
    Sketcher.Constraint("Coincident", 1, 2, 2, 1),
    Sketcher.Constraint("Coincident", 2, 2, 3, 1),
    Sketcher.Constraint("Coincident", 3, 2, 0, 1),
    Sketcher.Constraint("Vertical", 0),
    Sketcher.Constraint("Horizontal", 1),
    Sketcher.Constraint("Vertical", 2),
    Sketcher.Constraint("Horizontal", 3),
    Sketcher.Constraint("DistanceX", 1, 1, 1, 2, Q("29 in")),
    Sketcher.Constraint("DistanceY", 0, 2, 0, 1, Q("9 in")),
    Sketcher.Constraint("DistanceX", -1, 1, 0, 2, Q("19 in")),
    Sketcher.Constraint("DistanceY", -1, 1, 0, 2, Q("18.4 in")),
])
pad8 = body8.newObject("PartDesign::Pad", "Pad007")
pad8.Profile = sketch8
pad8.Length = Q("0.75 in")
body9 = doc.addObject("PartDesign::Body", "Body008")

sketch9 = body9.newObject("Sketcher::SketchObject", "Sketch008")
sketch9.AttachmentSupport = (doc.getObject("XY_Plane008"), [""])
sketch9.MapMode = "FlatFace"
sketch9.addGeometry([
    Part.LineSegment(V(483, 462, 0), V(483, 234, 0)),
    Part.LineSegment(V(483, 234, 0), V(1219, 234, 0)),
    Part.LineSegment(V(1219, 234, 0), V(1219, 462, 0)),
    Part.LineSegment(V(1219, 462, 0), V(483, 462, 0)),
], False)
sketch9.addConstraint([
    Sketcher.Constraint("Coincident", 0, 2, 1, 1),
    Sketcher.Constraint("Coincident", 1, 2, 2, 1),
    Sketcher.Constraint("Coincident", 2, 2, 3, 1),
    Sketcher.Constraint("Coincident", 3, 2, 0, 1),
    Sketcher.Constraint("Vertical", 0),
    Sketcher.Constraint("Horizontal", 1),
    Sketcher.Constraint("Vertical", 2),
    Sketcher.Constraint("Horizontal", 3),
    Sketcher.Constraint("DistanceX", 1, 1, 1, 2, Q("29 in")),
    Sketcher.Constraint("DistanceY", 0, 2, 0, 1, Q("9 in")),
    Sketcher.Constraint("DistanceX", -1, 1, 0, 2, Q("19 in")),
    Sketcher.Constraint("DistanceY", -1, 1, 0, 2, Q("9.2 in")),
])
pad9 = body9.newObject("PartDesign::Pad", "Pad008")
pad9.Profile = sketch9
pad9.Length = Q("0.75 in")
body10 = doc.addObject("PartDesign::Body", "Body009")

sketch10 = body10.newObject("Sketcher::SketchObject", "Sketch009")
sketch10.AttachmentSupport = (doc.getObject("XY_Plane009"), [""])
sketch10.MapMode = "FlatFace"
sketch10.addGeometry([
    Part.LineSegment(V(483, 229, 0), V(483, 0, 0)),
    Part.LineSegment(V(483, 0, 0), V(1219, 0, 0)),
    Part.LineSegment(V(1219, 0, 0), V(1219, 229, 0)),
    Part.LineSegment(V(1219, 229, 0), V(483, 229, 0)),
], False)
sketch10.addConstraint([
    Sketcher.Constraint("Coincident", 0, 2, 1, 1),
    Sketcher.Constraint("Coincident", 1, 2, 2, 1),
    Sketcher.Constraint("Coincident", 2, 2, 3, 1),
    Sketcher.Constraint("Coincident", 3, 2, 0, 1),
    Sketcher.Constraint("Vertical", 0),
    Sketcher.Constraint("Horizontal", 1),
    Sketcher.Constraint("Vertical", 2),
    Sketcher.Constraint("Horizontal", 3),
    Sketcher.Constraint("PointOnObject", 0, 2, -1),
    Sketcher.Constraint("DistanceX", 1, 1, 1, 2, Q("29 in")),
    Sketcher.Constraint("DistanceY", 0, 2, 0, 1, Q("9 in")),
    Sketcher.Constraint("DistanceX", -1, 1, 0, 2, Q("19 in")),
])
pad10 = body10.newObject("PartDesign::Pad", "Pad009")
pad10.Profile = sketch10
pad10.Length = Q("0.75 in")
body11 = doc.addObject("PartDesign::Body", "Body010")

sketch11 = body11.newObject("Sketcher::SketchObject", "Sketch010")
sketch11.AttachmentSupport = (doc.getObject("XY_Plane010"), [""])
sketch11.MapMode = "FlatFace"
sketch11.addGeometry([
    Part.LineSegment(V(749, 2438, 0), V(749, 1664, 0)),
    Part.LineSegment(V(749, 1664, 0), V(978, 1664, 0)),
    Part.LineSegment(V(978, 1664, 0), V(978, 2438, 0)),
    Part.LineSegment(V(978, 2438, 0), V(749, 2438, 0)),
], False)
sketch11.addConstraint([
    Sketcher.Constraint("Coincident", 0, 2, 1, 1),
    Sketcher.Constraint("Coincident", 1, 2, 2, 1),
    Sketcher.Constraint("Coincident", 2, 2, 3, 1),
    Sketcher.Constraint("Coincident", 3, 2, 0, 1),
    Sketcher.Constraint("Vertical", 0),
    Sketcher.Constraint("Horizontal", 1),
    Sketcher.Constraint("Vertical", 2),
    Sketcher.Constraint("Horizontal", 3),
    Sketcher.Constraint("DistanceX", 1, 1, 1, 2, Q("9 in")),
    Sketcher.Constraint("DistanceY", 0, 2, 0, 1, Q("30.5 in")),
    Sketcher.Constraint("DistanceY", -1, 1, 2, 2, Q("96 in")),
    Sketcher.Constraint("DistanceX", -1, 1, 0, 2, Q("29.5 in")),
])
pad11 = body11.newObject("PartDesign::Pad", "Pad010")
pad11.Profile = sketch11
pad11.Length = Q("0.75 in")
body12 = doc.addObject("PartDesign::Body", "Body011")

sketch12 = body12.newObject("Sketcher::SketchObject", "Sketch011")
sketch12.AttachmentSupport = (doc.getObject("XY_Plane011"), [""])
sketch12.MapMode = "FlatFace"
sketch12.addGeometry([
    Part.LineSegment(V(991, 2438, 0), V(991, 1664, 0)),
    Part.LineSegment(V(991, 1664, 0), V(1219, 1664, 0)),
    Part.LineSegment(V(1219, 1664, 0), V(1219, 2438, 0)),
    Part.LineSegment(V(1219, 2438, 0), V(991, 2438, 0)),
], False)
sketch12.addConstraint([
    Sketcher.Constraint("Coincident", 0, 2, 1, 1),
    Sketcher.Constraint("Coincident", 1, 2, 2, 1),
    Sketcher.Constraint("Coincident", 2, 2, 3, 1),
    Sketcher.Constraint("Coincident", 3, 2, 0, 1),
    Sketcher.Constraint("Vertical", 0),
    Sketcher.Constraint("Horizontal", 1),
    Sketcher.Constraint("Vertical", 2),
    Sketcher.Constraint("Horizontal", 3),
    Sketcher.Constraint("DistanceX", 1, 1, 1, 2, Q("9 in")),
    Sketcher.Constraint("DistanceY", 0, 2, 0, 1, Q("30.5 in")),
    Sketcher.Constraint("DistanceX", -1, 1, 0, 2, Q("39 in")),
    Sketcher.Constraint("DistanceY", -1, 1, 2, 2, Q("96 in")),
])
pad12 = body12.newObject("PartDesign::Pad", "Pad011")
pad12.Profile = sketch12
pad12.Length = Q("0.75 in")
body13 = doc.addObject("PartDesign::Body", "Body012")

sketch13 = body13.newObject("Sketcher::SketchObject", "Sketch012")
sketch13.AttachmentSupport = (doc.getObject("XY_Plane012"), [""])
sketch13.MapMode = "FlatFace"
sketch13.addGeometry([
    Part.LineSegment(V(0, 2438, 0), V(0, 2032, 0)),
    Part.LineSegment(V(0, 2032, 0), V(305, 2032, 0)),
    Part.LineSegment(V(305, 2032, 0), V(305, 2438, 0)),
    Part.LineSegment(V(305, 2438, 0), V(0, 2438, 0)),
], False)
sketch13.addConstraint([
    Sketcher.Constraint("Coincident", 0, 2, 1, 1),
    Sketcher.Constraint("Coincident", 1, 2, 2, 1),
    Sketcher.Constraint("Coincident", 2, 2, 3, 1),
    Sketcher.Constraint("Coincident", 3, 2, 0, 1),
    Sketcher.Constraint("Vertical", 0),
    Sketcher.Constraint("Horizontal", 1),
    Sketcher.Constraint("Vertical", 2),
    Sketcher.Constraint("Horizontal", 3),
    Sketcher.Constraint("PointOnObject", 0, 2, -2),
    Sketcher.Constraint("DistanceX", 1, 1, 1, 2, Q("12 in")),
    Sketcher.Constraint("DistanceY", 0, 2, 0, 1, Q("16 in")),
    Sketcher.Constraint("DistanceY", -1, 1, 0, 2, Q("80 in")),
])
pad13 = body13.newObject("PartDesign::Pad", "Pad012")
pad13.Profile = sketch13
pad13.Length = Q("0.75 in")
body14 = doc.addObject("PartDesign::Body", "Body013")

sketch14 = body14.newObject("Sketcher::SketchObject", "Sketch013")
sketch14.AttachmentSupport = (doc.getObject("XY_Plane013"), [""])
sketch14.MapMode = "FlatFace"
sketch14.addGeometry([
    Part.LineSegment(V(330, 2438, 0), V(330, 2032, 0)),
    Part.LineSegment(V(330, 2032, 0), V(635, 2032, 0)),
    Part.LineSegment(V(635, 2032, 0), V(635, 2438, 0)),
    Part.LineSegment(V(635, 2438, 0), V(330, 2438, 0)),
], False)
sketch14.addConstraint([
    Sketcher.Constraint("Coincident", 0, 2, 1, 1),
    Sketcher.Constraint("Coincident", 1, 2, 2, 1),
    Sketcher.Constraint("Coincident", 2, 2, 3, 1),
    Sketcher.Constraint("Coincident", 3, 2, 0, 1),
    Sketcher.Constraint("Vertical", 0),
    Sketcher.Constraint("Horizontal", 1),
    Sketcher.Constraint("Vertical", 2),
    Sketcher.Constraint("Horizontal", 3),
    Sketcher.Constraint("DistanceX", 1, 1, 1, 2, Q("12 in")),
    Sketcher.Constraint("DistanceY", 0, 2, 0, 1, Q("16 in")),
    Sketcher.Constraint("DistanceX", -1, 1, 0, 2, Q("13 in")),
    Sketcher.Constraint("DistanceY", -1, 1, 0, 2, Q("80 in")),
])
pad14 = body14.newObject("PartDesign::Pad", "Pad013")
pad14.Profile = sketch14
pad14.Length = Q("0.75 in")

doc.recompute()
